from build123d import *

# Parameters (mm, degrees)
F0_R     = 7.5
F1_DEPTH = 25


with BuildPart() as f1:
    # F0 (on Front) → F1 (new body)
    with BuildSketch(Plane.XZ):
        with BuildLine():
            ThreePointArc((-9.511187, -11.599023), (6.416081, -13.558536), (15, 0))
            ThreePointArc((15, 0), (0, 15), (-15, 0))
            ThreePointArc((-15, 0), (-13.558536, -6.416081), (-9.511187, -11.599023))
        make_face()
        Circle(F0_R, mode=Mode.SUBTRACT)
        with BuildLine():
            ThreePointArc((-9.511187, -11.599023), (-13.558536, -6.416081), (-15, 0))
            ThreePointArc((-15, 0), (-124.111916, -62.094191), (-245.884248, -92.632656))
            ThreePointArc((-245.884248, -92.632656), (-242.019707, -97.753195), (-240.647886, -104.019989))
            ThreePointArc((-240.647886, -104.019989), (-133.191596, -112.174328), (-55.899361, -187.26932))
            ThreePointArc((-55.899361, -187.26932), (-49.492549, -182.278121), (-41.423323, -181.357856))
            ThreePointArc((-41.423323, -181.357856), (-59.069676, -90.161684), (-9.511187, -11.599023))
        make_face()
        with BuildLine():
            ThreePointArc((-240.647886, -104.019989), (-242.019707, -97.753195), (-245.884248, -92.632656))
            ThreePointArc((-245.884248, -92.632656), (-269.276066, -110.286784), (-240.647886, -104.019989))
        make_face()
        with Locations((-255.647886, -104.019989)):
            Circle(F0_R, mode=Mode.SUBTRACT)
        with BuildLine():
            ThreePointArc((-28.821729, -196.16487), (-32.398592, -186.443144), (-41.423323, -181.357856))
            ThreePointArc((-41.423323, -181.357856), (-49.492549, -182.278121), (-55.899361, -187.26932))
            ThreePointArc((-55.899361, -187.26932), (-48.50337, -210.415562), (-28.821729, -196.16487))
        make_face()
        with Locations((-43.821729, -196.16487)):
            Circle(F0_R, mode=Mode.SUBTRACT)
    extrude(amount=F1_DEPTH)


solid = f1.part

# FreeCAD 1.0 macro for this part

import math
import FreeCAD as App
import Part
import Sketcher

V = App.Vector
Q = App.Units.Quantity

doc = App.newDocument("Part")
body = doc.addObject("PartDesign::Body", "Body")

sketch1 = body.newObject("Sketcher::SketchObject", "Sketch")
sketch1.AttachmentSupport = (doc.getObject("XZ_Plane"), [""])
sketch1.MapMode = "FlatFace"
sketch1.addGeometry(Part.ArcOfCircle(Part.Circle(V(0, 0, 0), V(0, 0, 1), 15), math.radians(-129), math.radians(0)), False)
sketch1.addGeometry(Part.ArcOfCircle(Part.Circle(V(0, 0, 0), V(0, 0, 1), 15), math.radians(0), math.radians(180)), False)
sketch1.addGeometry(Part.ArcOfCircle(Part.Circle(V(-297, 368, 0), V(0, 0, 1), 464), math.radians(-84), math.radians(-53)), False)
sketch1.addGeometry(Part.ArcOfCircle(Part.Circle(V(-256, -104, 0), V(0, 0, 1), 15), math.radians(49), math.radians(360)), False)
sketch1.addGeometry(Part.ArcOfCircle(Part.Circle(V(-198, -256, 0), V(0, 0, 1), 158), math.radians(26), math.radians(106)), False)
sketch1.addGeometry(Part.ArcOfCircle(Part.Circle(V(-44, -196, 0), V(0, 0, 1), 15), math.radians(144), math.radians(360)), False)
sketch1.addGeometry(Part.ArcOfCircle(Part.Circle(V(-44, -196, 0), V(0, 0, 1), 15), math.radians(0), math.radians(81)), False)
sketch1.addGeometry(Part.ArcOfCircle(Part.Circle(V(65, -113, 0), V(0, 0, 1), 126), math.radians(126), math.radians(213)), False)
sketch1.addGeometry(Part.Circle(V(-256, -104, 0), V(0, 0, 1), 8), False)
sketch1.addGeometry(Part.Circle(V(-44, -196, 0), V(0, 0, 1), 8), False)
sketch1.addGeometry(Part.Circle(V(0, 0, 0), V(0, 0, 1), 8), False)
sketch1.addConstraint(Sketcher.Constraint("Tangent", 0, 2, 1, 1))
sketch1.addConstraint(Sketcher.Constraint("Coincident", 1, 2, 2, 2))
sketch1.addConstraint(Sketcher.Constraint("Coincident", 2, 1, 3, 1))
sketch1.addConstraint(Sketcher.Constraint("Coincident", 3, 2, 4, 2))
sketch1.addConstraint(Sketcher.Constraint("Coincident", 4, 1, 5, 1))
sketch1.addConstraint(Sketcher.Constraint("Tangent", 5, 2, 6, 1))
sketch1.addConstraint(Sketcher.Constraint("Coincident", 6, 2, 7, 2))
sketch1.addConstraint(Sketcher.Constraint("Coincident", 7, 1, 0, 1))
sketch1.addConstraint(Sketcher.Constraint("Coincident", 0, 3, -1, 1))
sketch1.addConstraint(Sketcher.Constraint("Coincident", 10, 3, -1, 1))
sketch1.addConstraint(Sketcher.Constraint("Coincident", 8, 3, 3, 3))
sketch1.addConstraint(Sketcher.Constraint("Coincident", 9, 3, 5, 3))
sketch1.addConstraint(Sketcher.Constraint("Equal", 0, 1))
sketch1.addConstraint(Sketcher.Constraint("Equal", 1, 3))
sketch1.addConstraint(Sketcher.Constraint("Equal", 3, 5))
sketch1.addConstraint(Sketcher.Constraint("Equal", 5, 6))
sketch1.addConstraint(Sketcher.Constraint("Equal", 8, 9))
sketch1.addConstraint(Sketcher.Constraint("Equal", 9, 10))
sketch1.addConstraint(Sketcher.Constraint("PointOnObject", 0, 2, -1))
sketch1.addConstraint(Sketcher.Constraint("PointOnObject", 1, 2, -1))
sketch1.addConstraint(Sketcher.Constraint("Horizontal", 8, 3, 3, 2))
sketch1.addConstraint(Sketcher.Constraint("Horizontal", 9, 3, 5, 2))
sketch1.addConstraint(Sketcher.Constraint("Diameter", 8, Q("15 mm")))
sketch1.addConstraint(Sketcher.Constraint("Radius", 0, Q("15.000001 mm")))
sketch1.addConstraint(Sketcher.Constraint("Radius", 4, Q("158.17066 mm")))
sketch1.addConstraint(Sketcher.Constraint("Radius", 2, Q("463.551707 mm")))
sketch1.addConstraint(Sketcher.Constraint("Radius", 7, Q("126.175557 mm")))
sketch1.addConstraint(Sketcher.Constraint("DistanceX", 2, 3, 0, 3, Q("296.718702 mm")))
sketch1.addConstraint(Sketcher.Constraint("DistanceX", 4, 3, 4, 1, Q("142.2729 mm")))
sketch1.addConstraint(Sketcher.Constraint("DistanceY", 3, 3, -1, 1, Q("104.01999 mm")))
sketch1.addConstraint(Sketcher.Constraint("DistanceX", 4, 3, -1, 1, Q("198.172261 mm")))
sketch1.addConstraint(Sketcher.Constraint("DistanceX", 5, 3, -1, 1, Q("43.821729 mm")))
sketch1.addConstraint(Sketcher.Constraint("DistanceY", 5, 3, -1, 1, Q("196.16487 mm")))
sketch1.addConstraint(Sketcher.Constraint("DistanceX", -1, 1, 7, 3, Q("64.93386 mm")))
sketch1.addConstraint(Sketcher.Constraint("DistanceY", 4, 3, 7, 3, Q("142.908171 mm")))
pad1 = body.newObject("PartDesign::Pad", "Pad")
pad1.Profile = sketch1
pad1.Length = 25

doc.recompute()
